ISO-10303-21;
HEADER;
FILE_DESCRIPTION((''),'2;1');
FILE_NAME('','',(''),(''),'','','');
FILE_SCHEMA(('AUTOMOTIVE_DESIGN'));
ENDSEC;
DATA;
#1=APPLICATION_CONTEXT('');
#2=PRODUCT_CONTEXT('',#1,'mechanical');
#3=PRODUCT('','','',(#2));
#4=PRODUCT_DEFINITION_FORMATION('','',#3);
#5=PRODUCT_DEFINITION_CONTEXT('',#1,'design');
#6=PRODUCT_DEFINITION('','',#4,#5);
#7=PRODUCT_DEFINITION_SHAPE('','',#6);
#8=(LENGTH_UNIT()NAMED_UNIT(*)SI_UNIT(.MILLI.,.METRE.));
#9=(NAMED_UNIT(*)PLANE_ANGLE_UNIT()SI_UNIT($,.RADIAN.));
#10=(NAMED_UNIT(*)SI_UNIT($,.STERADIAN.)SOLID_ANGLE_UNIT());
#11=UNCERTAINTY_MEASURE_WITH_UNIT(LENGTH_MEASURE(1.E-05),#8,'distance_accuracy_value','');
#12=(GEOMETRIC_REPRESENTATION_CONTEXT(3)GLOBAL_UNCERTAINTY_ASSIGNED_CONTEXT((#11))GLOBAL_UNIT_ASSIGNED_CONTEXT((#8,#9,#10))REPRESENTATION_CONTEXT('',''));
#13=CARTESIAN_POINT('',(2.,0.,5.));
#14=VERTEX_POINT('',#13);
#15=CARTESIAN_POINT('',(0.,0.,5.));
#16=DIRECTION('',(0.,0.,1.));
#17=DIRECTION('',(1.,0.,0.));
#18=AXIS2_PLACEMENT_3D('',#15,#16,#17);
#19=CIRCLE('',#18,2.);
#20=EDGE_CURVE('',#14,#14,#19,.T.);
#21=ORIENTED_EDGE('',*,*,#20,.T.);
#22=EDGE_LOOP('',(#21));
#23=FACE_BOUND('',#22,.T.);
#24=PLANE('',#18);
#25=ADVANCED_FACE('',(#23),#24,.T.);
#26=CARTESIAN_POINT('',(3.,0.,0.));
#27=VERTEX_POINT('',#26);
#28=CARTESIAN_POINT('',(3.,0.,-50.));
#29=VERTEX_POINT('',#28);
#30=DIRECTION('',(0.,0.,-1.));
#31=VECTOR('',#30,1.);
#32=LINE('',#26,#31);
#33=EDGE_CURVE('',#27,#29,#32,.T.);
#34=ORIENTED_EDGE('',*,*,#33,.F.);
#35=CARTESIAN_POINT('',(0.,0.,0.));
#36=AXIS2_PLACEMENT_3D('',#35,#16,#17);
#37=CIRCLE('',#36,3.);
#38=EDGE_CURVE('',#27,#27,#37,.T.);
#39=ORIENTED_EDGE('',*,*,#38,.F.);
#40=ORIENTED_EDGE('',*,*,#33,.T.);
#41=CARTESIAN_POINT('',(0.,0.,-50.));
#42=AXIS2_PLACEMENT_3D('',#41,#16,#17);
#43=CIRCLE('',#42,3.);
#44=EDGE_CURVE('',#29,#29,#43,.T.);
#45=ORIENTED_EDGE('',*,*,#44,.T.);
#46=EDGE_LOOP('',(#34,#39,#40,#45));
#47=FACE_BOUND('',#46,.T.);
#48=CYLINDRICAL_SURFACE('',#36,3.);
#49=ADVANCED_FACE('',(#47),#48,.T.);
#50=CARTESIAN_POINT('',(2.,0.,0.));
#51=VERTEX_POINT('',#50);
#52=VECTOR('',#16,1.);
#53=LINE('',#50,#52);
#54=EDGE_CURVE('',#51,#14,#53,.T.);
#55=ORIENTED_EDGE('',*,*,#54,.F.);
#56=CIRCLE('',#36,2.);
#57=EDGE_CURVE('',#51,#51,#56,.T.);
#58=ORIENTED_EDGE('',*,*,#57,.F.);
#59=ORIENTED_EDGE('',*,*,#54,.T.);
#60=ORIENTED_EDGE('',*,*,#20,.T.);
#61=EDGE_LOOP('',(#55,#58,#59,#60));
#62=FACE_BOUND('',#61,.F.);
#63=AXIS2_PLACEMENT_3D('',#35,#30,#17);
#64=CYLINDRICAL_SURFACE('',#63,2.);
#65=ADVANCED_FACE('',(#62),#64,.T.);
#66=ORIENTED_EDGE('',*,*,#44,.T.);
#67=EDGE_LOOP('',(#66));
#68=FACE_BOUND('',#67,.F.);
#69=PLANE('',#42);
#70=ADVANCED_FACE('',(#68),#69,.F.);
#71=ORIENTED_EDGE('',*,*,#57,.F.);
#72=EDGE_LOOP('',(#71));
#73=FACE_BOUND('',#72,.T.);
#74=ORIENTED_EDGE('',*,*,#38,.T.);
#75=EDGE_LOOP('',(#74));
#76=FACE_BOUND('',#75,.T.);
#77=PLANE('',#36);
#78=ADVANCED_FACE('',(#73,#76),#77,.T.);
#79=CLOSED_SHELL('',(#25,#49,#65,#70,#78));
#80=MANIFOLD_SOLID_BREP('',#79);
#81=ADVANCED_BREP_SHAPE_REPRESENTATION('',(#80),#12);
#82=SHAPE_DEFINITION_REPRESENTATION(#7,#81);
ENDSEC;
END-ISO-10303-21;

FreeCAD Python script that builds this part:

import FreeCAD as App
import Part
import Sketcher

V = App.Vector
Q = App.Units.Quantity

doc = App.newDocument("Part")
body = doc.addObject("PartDesign::Body", "Body")

# Sketch on XY plane
sketch1 = body.newObject("Sketcher::SketchObject", "Sketch")
sketch1.AttachmentSupport = (doc.getObject("XY_Plane"), [""])
sketch1.MapMode = "FlatFace"
sketch1.addGeometry(Part.Circle(V(0, 0, 0), V(0, 0, 1), 3), False)
sketch1.addConstraint([
    Sketcher.Constraint("Coincident", 0, 3, -1, 1),
    Sketcher.Constraint("Diameter", 0, Q("6 mm")),
])
pad1 = body.newObject("PartDesign::Pad", "Pad")
pad1.Profile = sketch1
pad1.Length = 50
pad1.Reversed = True

# Sketch on XY plane
sketch2 = body.newObject("Sketcher::SketchObject", "Sketch001")
sketch2.AttachmentSupport = (doc.getObject("XY_Plane"), [""])
sketch2.MapMode = "FlatFace"
sketch2.addGeometry(Part.Circle(V(0, 0, 0), V(0, 0, 1), 2), False)
sketch2.addConstraint([
    Sketcher.Constraint("Coincident", 0, 3, -1, 1),
    Sketcher.Constraint("Diameter", 0, Q("4 mm")),
])
pad2 = body.newObject("PartDesign::Pad", "Pad001")
pad2.Profile = sketch2
pad2.Length = 5

doc.recompute()
